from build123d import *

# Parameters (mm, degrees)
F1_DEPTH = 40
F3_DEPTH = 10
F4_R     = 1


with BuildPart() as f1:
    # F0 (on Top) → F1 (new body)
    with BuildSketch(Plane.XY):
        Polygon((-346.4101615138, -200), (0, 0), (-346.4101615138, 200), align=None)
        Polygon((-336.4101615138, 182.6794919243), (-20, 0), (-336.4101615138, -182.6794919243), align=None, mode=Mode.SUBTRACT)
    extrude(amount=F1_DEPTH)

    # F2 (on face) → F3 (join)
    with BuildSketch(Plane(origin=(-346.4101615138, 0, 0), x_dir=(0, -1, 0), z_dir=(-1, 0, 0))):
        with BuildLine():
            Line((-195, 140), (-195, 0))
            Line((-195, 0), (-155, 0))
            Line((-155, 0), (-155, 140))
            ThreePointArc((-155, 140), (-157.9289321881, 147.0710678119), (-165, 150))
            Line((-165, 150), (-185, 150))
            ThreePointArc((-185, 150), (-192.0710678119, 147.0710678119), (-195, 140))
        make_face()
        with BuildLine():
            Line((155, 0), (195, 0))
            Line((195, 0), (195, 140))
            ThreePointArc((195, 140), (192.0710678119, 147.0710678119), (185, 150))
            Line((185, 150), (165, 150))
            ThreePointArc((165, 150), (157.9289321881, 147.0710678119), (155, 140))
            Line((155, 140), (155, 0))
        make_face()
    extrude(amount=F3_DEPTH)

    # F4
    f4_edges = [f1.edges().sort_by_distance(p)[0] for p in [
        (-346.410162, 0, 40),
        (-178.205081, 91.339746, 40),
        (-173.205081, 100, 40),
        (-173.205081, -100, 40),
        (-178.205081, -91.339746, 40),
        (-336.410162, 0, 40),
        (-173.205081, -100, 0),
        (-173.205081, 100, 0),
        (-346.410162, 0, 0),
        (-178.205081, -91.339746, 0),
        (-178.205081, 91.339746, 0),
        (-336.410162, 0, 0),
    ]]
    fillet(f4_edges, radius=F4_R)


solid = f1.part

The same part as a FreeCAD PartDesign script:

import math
import FreeCAD as App
import Part
import Sketcher

V = App.Vector
Q = App.Units.Quantity


def edges_at(feature, points):
    """Names of the edges that pass closest to the given points."""
    edges = feature.Shape.Edges
    near = lambda p: min(range(len(edges)), key=lambda i: edges[i].distToShape(Part.Vertex(*p))[0])
    return sorted({f"Edge{near(p) + 1}" for p in points})


def add_polygon(sketch, points):
    """Adds a closed chain of lines whose ends are joined by coincident constraints."""
    first, n = sketch.GeometryCount, len(points)
    for a, b in zip(points, points[1:] + points[:1]):
        sketch.addGeometry(Part.LineSegment(App.Vector(*a, 0), App.Vector(*b, 0)), False)
    for i in range(n):
        sketch.addConstraint(Sketcher.Constraint("Coincident", first + i, 2, first + (i + 1) % n, 1))

doc = App.newDocument("Part")
body = doc.addObject("PartDesign::Body", "Body")

# Sketch on XY plane
sketch1 = body.newObject("Sketcher::SketchObject", "Sketch")
sketch1.AttachmentSupport = (doc.getObject("XY_Plane"), [""])
sketch1.MapMode = "FlatFace"
add_polygon(sketch1, [(-346, -200), (0, 0), (-346, 200)])  # lines 0-2
add_polygon(sketch1, [(-336, -183), (-336, 183), (-20, 0)])  # lines 3-5
sketch1.addConstraint([
    Sketcher.Constraint("Vertical", 2),
    Sketcher.Constraint("Vertical", 3),
    Sketcher.Constraint("Coincident", 0, 2, -1, 1),
    Sketcher.Constraint("PointOnObject", 4, 2, -1),
    Sketcher.Constraint("Parallel", 1, 4),
    Sketcher.Constraint("Parallel", 0, 5),
    Sketcher.Constraint("Equal", 0, 1),
    Sketcher.Constraint("DistanceY", 2, 2, 2, 1, 400.0),
    Sketcher.Constraint("Angle", 0, Q("30 deg")),
    Sketcher.Constraint("DistanceX", 4, 2, -1, 1, 20.0),
    Sketcher.Constraint("DistanceX", 1, 2, 3, 2, 10.0),
])
pad1 = body.newObject("PartDesign::Pad", "Pad")
pad1.Profile = sketch1
pad1.Length = 40

# Sketch on YZ plane
sketch2 = body.newObject("Sketcher::SketchObject", "Sketch001")
sketch2.AttachmentSupport = (doc.getObject("YZ_Plane"), [""])
sketch2.MapMode = "FlatFace"
sketch2.AttachmentOffset = App.Placement(V(0, 0, -346.410162), App.Rotation())
sketch2.addGeometry([
    Part.LineSegment(V(195, 140, 0), V(195, 0, 0)),  # 0
    Part.LineSegment(V(195, 0, 0), V(155, 0, 0)),  # 1
    Part.LineSegment(V(155, 0, 0), V(155, 140, 0)),  # 2
    Part.ArcOfCircle(Part.Circle(V(165, 140, 0), V(0, 0, 1), 10), math.radians(90), math.radians(180)),  # 3
    Part.LineSegment(V(165, 150, 0), V(185, 150, 0)),  # 4
    Part.ArcOfCircle(Part.Circle(V(185, 140, 0), V(0, 0, 1), 10), math.radians(0), math.radians(90)),  # 5
    Part.LineSegment(V(-155, 0, 0), V(-195, 0, 0)),  # 6
    Part.LineSegment(V(-195, 0, 0), V(-195, 140, 0)),  # 7
    Part.ArcOfCircle(Part.Circle(V(-185, 140, 0), V(0, 0, 1), 10), math.radians(90), math.radians(180)),  # 8
    Part.LineSegment(V(-185, 150, 0), V(-165, 150, 0)),  # 9
    Part.ArcOfCircle(Part.Circle(V(-165, 140, 0), V(0, 0, 1), 10), math.radians(0), math.radians(90)),  # 10
    Part.LineSegment(V(-155, 140, 0), V(-155, 0, 0)),  # 11
], False)
sketch2.addConstraint([
    Sketcher.Constraint("Coincident", 0, 2, 1, 1),
    Sketcher.Constraint("Coincident", 1, 2, 2, 1),
    Sketcher.Constraint("Tangent", 2, 2, 3, 2),
    Sketcher.Constraint("Tangent", 3, 1, 4, 1),
    Sketcher.Constraint("Tangent", 4, 2, 5, 2),
    Sketcher.Constraint("Tangent", 5, 1, 0, 1),
    Sketcher.Constraint("Coincident", 6, 2, 7, 1),
    Sketcher.Constraint("Tangent", 7, 2, 8, 2),
    Sketcher.Constraint("Tangent", 8, 1, 9, 1),
    Sketcher.Constraint("Tangent", 9, 2, 10, 2),
    Sketcher.Constraint("Tangent", 10, 1, 11, 1),
    Sketcher.Constraint("Coincident", 11, 2, 6, 1),
    Sketcher.Constraint("Vertical", 0),
    Sketcher.Constraint("Horizontal", 1),
    Sketcher.Constraint("Vertical", 2),
    Sketcher.Constraint("Horizontal", 4),
    Sketcher.Constraint("Horizontal", 6),
    Sketcher.Constraint("Vertical", 7),
    Sketcher.Constraint("Horizontal", 9),
    Sketcher.Constraint("Vertical", 11),
    Sketcher.Constraint("Equal", 3, 5),
    Sketcher.Constraint("Equal", 5, 8),
    Sketcher.Constraint("Equal", 8, 10),
    Sketcher.Constraint("Symmetric", 0, 2, 6, 2, -1, 1),
    Sketcher.Constraint("Symmetric", 3, 3, 10, 3, -2),
    Sketcher.Constraint("PointOnObject", 0, 2, -1),
    Sketcher.Constraint("Radius", 3, 10.0),
    Sketcher.Constraint("DistanceX", 1, 2, 1, 1, 40.0),
    Sketcher.Constraint("DistanceY", 0, 2, 0, 1, 140.0),
    Sketcher.Constraint("DistanceX", -1, 1, 3, 3, 165.0),
])
pad2 = body.newObject("PartDesign::Pad", "Pad001")
pad2.Profile = sketch2
pad2.Length = 10
pad2.Reversed = True
doc.recompute()

fillet = body.newObject("PartDesign::Fillet", "Fillet")
fillet.Base = (pad2, edges_at(pad2, [
    (-346.41, 0, 40),
    (-178.205, 91.34, 40),
    (-173.205, 100, 40),
    (-173.205, -100, 40),
    (-178.205, -91.34, 40),
    (-336.41, 0, 40),
    (-173.205, -100, 0),
    (-173.205, 100, 0),
    (-346.41, 0, 0),
    (-178.205, -91.34, 0),
    (-178.205, 91.34, 0),
    (-336.41, 0, 0),
]))
fillet.Radius = 1

doc.recompute()
